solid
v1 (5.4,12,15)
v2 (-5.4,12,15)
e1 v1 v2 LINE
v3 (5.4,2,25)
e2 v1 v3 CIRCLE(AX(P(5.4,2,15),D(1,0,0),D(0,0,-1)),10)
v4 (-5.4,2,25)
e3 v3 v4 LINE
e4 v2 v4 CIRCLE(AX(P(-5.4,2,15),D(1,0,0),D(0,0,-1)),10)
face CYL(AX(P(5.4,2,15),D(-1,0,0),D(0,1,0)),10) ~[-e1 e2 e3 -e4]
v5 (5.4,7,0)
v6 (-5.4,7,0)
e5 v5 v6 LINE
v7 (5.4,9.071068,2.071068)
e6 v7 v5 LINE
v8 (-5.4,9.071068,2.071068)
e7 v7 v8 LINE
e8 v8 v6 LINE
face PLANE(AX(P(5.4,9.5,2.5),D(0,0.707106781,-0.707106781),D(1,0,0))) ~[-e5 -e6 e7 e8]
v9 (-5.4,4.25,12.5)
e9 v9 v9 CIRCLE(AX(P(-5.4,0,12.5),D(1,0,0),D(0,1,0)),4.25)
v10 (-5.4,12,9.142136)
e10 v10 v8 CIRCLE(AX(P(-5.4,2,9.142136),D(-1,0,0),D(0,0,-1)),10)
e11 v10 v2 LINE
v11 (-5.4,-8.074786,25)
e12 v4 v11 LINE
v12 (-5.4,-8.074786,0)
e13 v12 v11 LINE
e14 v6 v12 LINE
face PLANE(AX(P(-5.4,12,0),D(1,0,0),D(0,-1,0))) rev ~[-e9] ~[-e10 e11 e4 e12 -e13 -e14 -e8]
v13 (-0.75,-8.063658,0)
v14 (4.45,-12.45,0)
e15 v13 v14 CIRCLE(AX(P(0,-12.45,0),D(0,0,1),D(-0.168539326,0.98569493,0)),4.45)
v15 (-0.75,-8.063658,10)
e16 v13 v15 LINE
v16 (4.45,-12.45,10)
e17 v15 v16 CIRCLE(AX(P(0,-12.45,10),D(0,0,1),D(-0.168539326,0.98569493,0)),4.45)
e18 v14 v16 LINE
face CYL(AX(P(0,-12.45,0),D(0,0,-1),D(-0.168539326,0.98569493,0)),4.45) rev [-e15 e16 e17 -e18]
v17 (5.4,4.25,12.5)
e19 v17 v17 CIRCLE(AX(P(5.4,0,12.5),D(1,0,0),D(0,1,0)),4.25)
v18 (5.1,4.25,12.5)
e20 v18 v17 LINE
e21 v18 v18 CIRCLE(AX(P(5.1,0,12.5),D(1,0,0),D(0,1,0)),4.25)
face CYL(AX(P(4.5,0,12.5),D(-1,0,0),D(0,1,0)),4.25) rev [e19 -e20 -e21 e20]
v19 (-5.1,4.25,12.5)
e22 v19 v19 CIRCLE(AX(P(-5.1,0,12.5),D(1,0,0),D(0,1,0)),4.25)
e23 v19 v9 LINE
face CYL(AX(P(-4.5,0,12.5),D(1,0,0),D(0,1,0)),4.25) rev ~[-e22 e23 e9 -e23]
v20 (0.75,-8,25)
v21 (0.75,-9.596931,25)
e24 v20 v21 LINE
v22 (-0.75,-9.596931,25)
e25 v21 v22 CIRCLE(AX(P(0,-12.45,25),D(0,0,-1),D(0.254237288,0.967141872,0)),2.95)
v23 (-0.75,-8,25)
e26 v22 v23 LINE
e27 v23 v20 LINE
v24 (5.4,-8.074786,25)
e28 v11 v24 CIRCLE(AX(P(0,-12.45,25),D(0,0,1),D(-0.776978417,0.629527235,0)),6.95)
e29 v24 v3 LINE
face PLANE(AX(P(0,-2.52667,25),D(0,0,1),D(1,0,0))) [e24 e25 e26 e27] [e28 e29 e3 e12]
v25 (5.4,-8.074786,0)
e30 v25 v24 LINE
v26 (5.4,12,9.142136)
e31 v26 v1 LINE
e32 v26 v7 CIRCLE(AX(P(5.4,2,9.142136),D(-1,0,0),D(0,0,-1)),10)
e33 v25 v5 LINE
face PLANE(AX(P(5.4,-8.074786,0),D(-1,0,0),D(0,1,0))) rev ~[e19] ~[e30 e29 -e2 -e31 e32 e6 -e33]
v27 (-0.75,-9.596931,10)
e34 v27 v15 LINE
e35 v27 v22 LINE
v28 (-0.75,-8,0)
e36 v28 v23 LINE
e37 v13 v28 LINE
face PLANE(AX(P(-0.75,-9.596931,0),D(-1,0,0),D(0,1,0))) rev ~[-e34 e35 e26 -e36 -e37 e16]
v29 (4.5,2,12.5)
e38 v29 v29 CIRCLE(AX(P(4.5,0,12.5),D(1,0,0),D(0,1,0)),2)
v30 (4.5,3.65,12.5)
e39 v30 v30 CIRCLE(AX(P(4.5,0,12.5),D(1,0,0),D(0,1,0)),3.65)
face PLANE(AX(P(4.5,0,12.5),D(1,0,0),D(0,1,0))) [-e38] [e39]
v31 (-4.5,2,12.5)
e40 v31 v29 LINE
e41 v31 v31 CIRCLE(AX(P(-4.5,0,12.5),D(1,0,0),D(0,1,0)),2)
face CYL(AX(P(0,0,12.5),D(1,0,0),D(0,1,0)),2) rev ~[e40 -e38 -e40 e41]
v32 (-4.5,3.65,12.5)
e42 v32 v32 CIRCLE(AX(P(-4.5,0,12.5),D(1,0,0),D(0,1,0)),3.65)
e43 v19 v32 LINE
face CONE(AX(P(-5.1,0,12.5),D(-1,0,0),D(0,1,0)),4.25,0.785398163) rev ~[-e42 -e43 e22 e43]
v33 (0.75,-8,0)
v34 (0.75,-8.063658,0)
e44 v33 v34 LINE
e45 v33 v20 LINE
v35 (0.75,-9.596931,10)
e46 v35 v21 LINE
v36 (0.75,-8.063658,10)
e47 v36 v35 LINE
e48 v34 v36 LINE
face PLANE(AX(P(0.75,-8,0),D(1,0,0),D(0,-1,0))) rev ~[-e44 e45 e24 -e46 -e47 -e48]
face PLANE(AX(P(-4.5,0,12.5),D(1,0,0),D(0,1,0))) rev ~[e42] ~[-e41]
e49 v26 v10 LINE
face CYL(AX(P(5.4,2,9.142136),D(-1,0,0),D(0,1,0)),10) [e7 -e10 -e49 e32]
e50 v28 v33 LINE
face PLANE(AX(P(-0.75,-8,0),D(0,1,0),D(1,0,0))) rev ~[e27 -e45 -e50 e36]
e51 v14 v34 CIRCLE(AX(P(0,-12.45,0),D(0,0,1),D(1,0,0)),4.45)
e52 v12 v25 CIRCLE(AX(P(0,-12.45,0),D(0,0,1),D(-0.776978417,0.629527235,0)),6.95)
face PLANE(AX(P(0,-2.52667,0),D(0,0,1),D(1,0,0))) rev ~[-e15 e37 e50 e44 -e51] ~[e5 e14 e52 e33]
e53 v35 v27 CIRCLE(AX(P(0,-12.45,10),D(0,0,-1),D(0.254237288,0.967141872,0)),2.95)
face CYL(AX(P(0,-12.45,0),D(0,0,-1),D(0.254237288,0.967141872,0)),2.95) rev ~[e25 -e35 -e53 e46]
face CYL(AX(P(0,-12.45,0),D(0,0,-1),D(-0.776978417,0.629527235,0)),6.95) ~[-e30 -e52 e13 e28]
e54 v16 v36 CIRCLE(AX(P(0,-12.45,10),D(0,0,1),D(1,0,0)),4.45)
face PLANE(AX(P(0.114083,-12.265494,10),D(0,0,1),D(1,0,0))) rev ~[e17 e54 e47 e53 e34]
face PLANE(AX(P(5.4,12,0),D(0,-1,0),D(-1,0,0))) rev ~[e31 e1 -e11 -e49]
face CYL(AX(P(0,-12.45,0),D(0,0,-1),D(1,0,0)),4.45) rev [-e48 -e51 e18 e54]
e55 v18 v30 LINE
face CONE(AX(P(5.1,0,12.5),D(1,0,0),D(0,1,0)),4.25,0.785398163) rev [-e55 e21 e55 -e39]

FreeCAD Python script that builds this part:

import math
import FreeCAD as App
import Part
import Sketcher
Q = App.Units.Quantity


def edges_at(feature, points):
    """Names of the edges that pass closest to the given points."""
    edges = feature.Shape.Edges
    near = lambda p: min(range(len(edges)), key=lambda i: edges[i].distToShape(Part.Vertex(*p))[0])
    return sorted({f"Edge{near(p) + 1}" for p in points})

doc = App.newDocument("Part")
params = doc.addObject("Spreadsheet::Sheet", "Params")
for row, (alias, value) in enumerate([
    ("sketch1_radius", "6.95 mm"),
    ("sketch1_radius2", "2.95 mm"),
    ("sketch1_width", "10.8 mm"),
    ("sketch1_width2", "1.5 mm"),
    ("pad1_length", "25 mm"),
    ("fillet_radius", "10 mm"),
    ("sketch2_diameter", "4 mm"),
    ("pocket1_length", "25 mm"),
    ("chamfer_size", "5 mm"),
    ("sketch3_radius", "2.95 mm"),
    ("sketch3_radius2", "4.45 mm"),
    ("pocket2_length", "10 mm"),
    ("sketch4_diameter", "4 mm"),
    ("sketch4_diameter2", "8.5 mm"),
    ("pocket3_length", "0.9 mm"),
    ("sketch5_diameter", "4 mm"),
    ("sketch5_diameter2", "8.5 mm"),
    ("pocket4_length", "0.9 mm"),
    ("chamfer2_size", "0.6 mm"),
    ("fillet2_radius", "10 mm"),
], start=1):
    params.set(f"A{row}", alias)
    params.set(f"B{row}", "=" + value)
    params.setAlias(f"B{row}", alias)

body = doc.addObject("PartDesign::Body", "Body")

sketch1 = body.newObject("Sketcher::SketchObject", "Sketch")
sketch1.AttachmentSupport = (doc.getObject("XY_Plane"), [""])
sketch1.MapMode = "FlatFace"
sketch1.addGeometry([
    Part.LineSegment(App.Vector(5.4, 12, 0), App.Vector(-5.4, 12, 0)),
    Part.LineSegment(App.Vector(-5.4, 12, 0), App.Vector(-5.4, -8.1, 0)),
    Part.ArcOfCircle(Part.Circle(App.Vector(0, -12.4, 0), App.Vector(0, 0, 1), 7), math.radians(141), math.radians(399)),
    Part.LineSegment(App.Vector(5.4, -8.1, 0), App.Vector(5.4, 12, 0)),
    Part.LineSegment(App.Vector(0.8, -8, 0), App.Vector(0.8, -9.6, 0)),
    Part.ArcOfCircle(Part.Circle(App.Vector(0, -12.4, 0), App.Vector(0, 0, 1), 3), math.radians(105), math.radians(435)),
    Part.LineSegment(App.Vector(-0.8, -9.6, 0), App.Vector(-0.8, -8, 0)),
    Part.LineSegment(App.Vector(-0.8, -8, 0), App.Vector(0.8, -8, 0)),
], False)
sketch1.addConstraint([
    Sketcher.Constraint("Coincident", 0, 2, 1, 1),
    Sketcher.Constraint("Coincident", 1, 2, 2, 1),
    Sketcher.Constraint("Coincident", 2, 2, 3, 1),
    Sketcher.Constraint("Coincident", 3, 2, 0, 1),
    Sketcher.Constraint("Coincident", 4, 2, 5, 2),
    Sketcher.Constraint("Coincident", 5, 1, 6, 1),
    Sketcher.Constraint("Coincident", 6, 2, 7, 1),
    Sketcher.Constraint("Coincident", 7, 2, 4, 1),
    Sketcher.Constraint("Horizontal", 0),
    Sketcher.Constraint("Vertical", 1),
    Sketcher.Constraint("Vertical", 3),
    Sketcher.Constraint("Vertical", 4),
    Sketcher.Constraint("Vertical", 6),
    Sketcher.Constraint("Horizontal", 7),
    Sketcher.Constraint("Coincident", 5, 3, 2, 3),
    Sketcher.Constraint("Symmetric", 1, 2, 2, 2, -2),
    Sketcher.Constraint("Horizontal", 4, 2, 5, 1),
    Sketcher.Constraint("Radius", 2, Q("6.95 mm")),
    Sketcher.Constraint("Radius", 5, Q("2.95 mm")),
    Sketcher.Constraint("DistanceX", 0, 2, 0, 1, Q("10.8 mm")),
    Sketcher.Constraint("DistanceX", 7, 1, 7, 2, Q("1.5 mm")),
    Sketcher.Constraint("DistanceY", -1, 1, 0, 2, Q("12 mm")),
    Sketcher.Constraint("DistanceY", 6, 2, -1, 1, Q("8 mm")),
    Sketcher.Constraint("DistanceY", 2, 3, -1, 1, Q("12.45 mm")),
])
sketch1.setExpression("Constraints[17]", "Params.sketch1_radius")
sketch1.setExpression("Constraints[18]", "Params.sketch1_radius2")
sketch1.setExpression("Constraints[19]", "Params.sketch1_width")
sketch1.setExpression("Constraints[20]", "Params.sketch1_width2")
pad1 = body.newObject("PartDesign::Pad", "Pad")
pad1.Profile = sketch1
pad1.setExpression("Length", "Params.pad1_length")
doc.recompute()

fillet = body.newObject("PartDesign::Fillet", "Fillet")
fillet.Base = (pad1, edges_at(pad1, [(0, 12, 25)]))
fillet.setExpression("Radius", "Params.fillet_radius")

sketch2 = body.newObject("Sketcher::SketchObject", "Sketch001")
sketch2.AttachmentSupport = (doc.getObject("YZ_Plane"), [""])
sketch2.MapMode = "FlatFace"
sketch2.addGeometry(Part.Circle(App.Vector(0, 12.5, 0), App.Vector(0, 0, 1), 2), False)
sketch2.addConstraint([
    Sketcher.Constraint("PointOnObject", 0, 3, -2),
    Sketcher.Constraint("Diameter", 0, Q("4 mm")),
    Sketcher.Constraint("DistanceY", -1, 1, 0, 3, Q("12.5 mm")),
])
sketch2.setExpression("Constraints[1]", "Params.sketch2_diameter")
pocket1 = body.newObject("PartDesign::Pocket", "Pocket")
pocket1.Profile = sketch2
pocket1.setExpression("Length", "Params.pocket1_length")
pocket1.Midplane = True
doc.recompute()

chamfer = body.newObject("PartDesign::Chamfer", "Chamfer")
chamfer.Base = (pocket1, edges_at(pocket1, [(0, 12, 0)]))
chamfer.setExpression("Size", "Params.chamfer_size")

sketch3 = body.newObject("Sketcher::SketchObject", "Sketch002")
sketch3.AttachmentSupport = (doc.getObject("XY_Plane"), [""])
sketch3.MapMode = "FlatFace"
sketch3.addGeometry([
    Part.ArcOfCircle(Part.Circle(App.Vector(0, -12.4, 0), App.Vector(0, 0, 1), 3), math.radians(105), math.radians(435)),
    Part.LineSegment(App.Vector(-0.8, -9.6, 0), App.Vector(-0.8, -8.1, 0)),
    Part.ArcOfCircle(Part.Circle(App.Vector(0, -12.4, 0), App.Vector(0, 0, 1), 4.5), math.radians(100), math.radians(360)),
    Part.ArcOfCircle(Part.Circle(App.Vector(0, -12.4, 0), App.Vector(0, 0, 1), 4.5), math.radians(0), math.radians(80)),
    Part.LineSegment(App.Vector(0.8, -8.1, 0), App.Vector(0.8, -9.6, 0)),
], False)
sketch3.addConstraint([
    Sketcher.Constraint("Coincident", 0, 1, 1, 1),
    Sketcher.Constraint("Coincident", 1, 2, 2, 1),
    Sketcher.Constraint("Tangent", 2, 2, 3, 1),
    Sketcher.Constraint("Coincident", 3, 2, 4, 1),
    Sketcher.Constraint("Coincident", 4, 2, 0, 2),
    Sketcher.Constraint("Vertical", 1),
    Sketcher.Constraint("Vertical", 4),
    Sketcher.Constraint("Coincident", 2, 3, 0, 3),
    Sketcher.Constraint("Equal", 2, 3),
    Sketcher.Constraint("Symmetric", 1, 2, 3, 2, -2),
    Sketcher.Constraint("Horizontal", 3, 3, 2, 2),
    Sketcher.Constraint("Radius", 0, Q("2.95 mm")),
    Sketcher.Constraint("Radius", 2, Q("4.45 mm")),
    Sketcher.Constraint("DistanceX", 0, 1, 2, 2, Q("5.2 mm")),
    Sketcher.Constraint("DistanceY", 0, 3, -1, 1, Q("12.45 mm")),
])
sketch3.setExpression("Constraints[11]", "Params.sketch3_radius")
sketch3.setExpression("Constraints[12]", "Params.sketch3_radius2")
pocket2 = body.newObject("PartDesign::Pocket", "Pocket001")
pocket2.Profile = sketch3
pocket2.setExpression("Length", "Params.pocket2_length")
pocket2.Reversed = True

sketch4 = body.newObject("Sketcher::SketchObject", "Sketch003")
sketch4.AttachmentSupport = (doc.getObject("YZ_Plane"), [""])
sketch4.MapMode = "FlatFace"
sketch4.AttachmentOffset = App.Placement(App.Vector(0, 0, -4.5), App.Rotation())
sketch4.addGeometry([
    Part.Circle(App.Vector(0, 12.5, 0), App.Vector(0, 0, 1), 4.2),
    Part.Circle(App.Vector(0, 12.5, 0), App.Vector(0, 0, 1), 2),
], False)
sketch4.addConstraint([
    Sketcher.Constraint("Coincident", 1, 3, 0, 3),
    Sketcher.Constraint("PointOnObject", 0, 3, -2),
    Sketcher.Constraint("Diameter", 1, Q("4 mm")),
    Sketcher.Constraint("Diameter", 0, Q("8.5 mm")),
    Sketcher.Constraint("DistanceY", -1, 1, 0, 3, Q("12.5 mm")),
])
sketch4.setExpression("Constraints[2]", "Params.sketch4_diameter")
sketch4.setExpression("Constraints[3]", "Params.sketch4_diameter2")
pocket3 = body.newObject("PartDesign::Pocket", "Pocket002")
pocket3.Profile = sketch4
pocket3.setExpression("Length", "Params.pocket3_length")

sketch5 = body.newObject("Sketcher::SketchObject", "Sketch004")
sketch5.AttachmentSupport = (doc.getObject("YZ_Plane"), [""])
sketch5.MapMode = "FlatFace"
sketch5.AttachmentOffset = App.Placement(App.Vector(0, 0, 4.5), App.Rotation())
sketch5.addGeometry([
    Part.Circle(App.Vector(0, 12.5, 0), App.Vector(0, 0, 1), 4.2),
    Part.Circle(App.Vector(0, 12.5, 0), App.Vector(0, 0, 1), 2),
], False)
sketch5.addConstraint([
    Sketcher.Constraint("Coincident", 1, 3, 0, 3),
    Sketcher.Constraint("PointOnObject", 0, 3, -2),
    Sketcher.Constraint("Diameter", 1, Q("4 mm")),
    Sketcher.Constraint("Diameter", 0, Q("8.5 mm")),
    Sketcher.Constraint("DistanceY", -1, 1, 0, 3, Q("12.5 mm")),
])
sketch5.setExpression("Constraints[2]", "Params.sketch5_diameter")
sketch5.setExpression("Constraints[3]", "Params.sketch5_diameter2")
pocket4 = body.newObject("PartDesign::Pocket", "Pocket003")
pocket4.Profile = sketch5
pocket4.setExpression("Length", "Params.pocket4_length")
pocket4.Reversed = True
doc.recompute()

chamfer2 = body.newObject("PartDesign::Chamfer", "Chamfer001")
chamfer2.Base = (pocket4, edges_at(pocket4, [(4.5, -4.25, 12.5), (-4.5, -4.25, 12.5)]))
chamfer2.setExpression("Size", "Params.chamfer2_size")
doc.recompute()

fillet2 = body.newObject("PartDesign::Fillet", "Fillet001")
fillet2.Base = (chamfer2, edges_at(chamfer2, [(0, 12, 5)]))
fillet2.setExpression("Radius", "Params.fillet2_radius")

doc.recompute()
